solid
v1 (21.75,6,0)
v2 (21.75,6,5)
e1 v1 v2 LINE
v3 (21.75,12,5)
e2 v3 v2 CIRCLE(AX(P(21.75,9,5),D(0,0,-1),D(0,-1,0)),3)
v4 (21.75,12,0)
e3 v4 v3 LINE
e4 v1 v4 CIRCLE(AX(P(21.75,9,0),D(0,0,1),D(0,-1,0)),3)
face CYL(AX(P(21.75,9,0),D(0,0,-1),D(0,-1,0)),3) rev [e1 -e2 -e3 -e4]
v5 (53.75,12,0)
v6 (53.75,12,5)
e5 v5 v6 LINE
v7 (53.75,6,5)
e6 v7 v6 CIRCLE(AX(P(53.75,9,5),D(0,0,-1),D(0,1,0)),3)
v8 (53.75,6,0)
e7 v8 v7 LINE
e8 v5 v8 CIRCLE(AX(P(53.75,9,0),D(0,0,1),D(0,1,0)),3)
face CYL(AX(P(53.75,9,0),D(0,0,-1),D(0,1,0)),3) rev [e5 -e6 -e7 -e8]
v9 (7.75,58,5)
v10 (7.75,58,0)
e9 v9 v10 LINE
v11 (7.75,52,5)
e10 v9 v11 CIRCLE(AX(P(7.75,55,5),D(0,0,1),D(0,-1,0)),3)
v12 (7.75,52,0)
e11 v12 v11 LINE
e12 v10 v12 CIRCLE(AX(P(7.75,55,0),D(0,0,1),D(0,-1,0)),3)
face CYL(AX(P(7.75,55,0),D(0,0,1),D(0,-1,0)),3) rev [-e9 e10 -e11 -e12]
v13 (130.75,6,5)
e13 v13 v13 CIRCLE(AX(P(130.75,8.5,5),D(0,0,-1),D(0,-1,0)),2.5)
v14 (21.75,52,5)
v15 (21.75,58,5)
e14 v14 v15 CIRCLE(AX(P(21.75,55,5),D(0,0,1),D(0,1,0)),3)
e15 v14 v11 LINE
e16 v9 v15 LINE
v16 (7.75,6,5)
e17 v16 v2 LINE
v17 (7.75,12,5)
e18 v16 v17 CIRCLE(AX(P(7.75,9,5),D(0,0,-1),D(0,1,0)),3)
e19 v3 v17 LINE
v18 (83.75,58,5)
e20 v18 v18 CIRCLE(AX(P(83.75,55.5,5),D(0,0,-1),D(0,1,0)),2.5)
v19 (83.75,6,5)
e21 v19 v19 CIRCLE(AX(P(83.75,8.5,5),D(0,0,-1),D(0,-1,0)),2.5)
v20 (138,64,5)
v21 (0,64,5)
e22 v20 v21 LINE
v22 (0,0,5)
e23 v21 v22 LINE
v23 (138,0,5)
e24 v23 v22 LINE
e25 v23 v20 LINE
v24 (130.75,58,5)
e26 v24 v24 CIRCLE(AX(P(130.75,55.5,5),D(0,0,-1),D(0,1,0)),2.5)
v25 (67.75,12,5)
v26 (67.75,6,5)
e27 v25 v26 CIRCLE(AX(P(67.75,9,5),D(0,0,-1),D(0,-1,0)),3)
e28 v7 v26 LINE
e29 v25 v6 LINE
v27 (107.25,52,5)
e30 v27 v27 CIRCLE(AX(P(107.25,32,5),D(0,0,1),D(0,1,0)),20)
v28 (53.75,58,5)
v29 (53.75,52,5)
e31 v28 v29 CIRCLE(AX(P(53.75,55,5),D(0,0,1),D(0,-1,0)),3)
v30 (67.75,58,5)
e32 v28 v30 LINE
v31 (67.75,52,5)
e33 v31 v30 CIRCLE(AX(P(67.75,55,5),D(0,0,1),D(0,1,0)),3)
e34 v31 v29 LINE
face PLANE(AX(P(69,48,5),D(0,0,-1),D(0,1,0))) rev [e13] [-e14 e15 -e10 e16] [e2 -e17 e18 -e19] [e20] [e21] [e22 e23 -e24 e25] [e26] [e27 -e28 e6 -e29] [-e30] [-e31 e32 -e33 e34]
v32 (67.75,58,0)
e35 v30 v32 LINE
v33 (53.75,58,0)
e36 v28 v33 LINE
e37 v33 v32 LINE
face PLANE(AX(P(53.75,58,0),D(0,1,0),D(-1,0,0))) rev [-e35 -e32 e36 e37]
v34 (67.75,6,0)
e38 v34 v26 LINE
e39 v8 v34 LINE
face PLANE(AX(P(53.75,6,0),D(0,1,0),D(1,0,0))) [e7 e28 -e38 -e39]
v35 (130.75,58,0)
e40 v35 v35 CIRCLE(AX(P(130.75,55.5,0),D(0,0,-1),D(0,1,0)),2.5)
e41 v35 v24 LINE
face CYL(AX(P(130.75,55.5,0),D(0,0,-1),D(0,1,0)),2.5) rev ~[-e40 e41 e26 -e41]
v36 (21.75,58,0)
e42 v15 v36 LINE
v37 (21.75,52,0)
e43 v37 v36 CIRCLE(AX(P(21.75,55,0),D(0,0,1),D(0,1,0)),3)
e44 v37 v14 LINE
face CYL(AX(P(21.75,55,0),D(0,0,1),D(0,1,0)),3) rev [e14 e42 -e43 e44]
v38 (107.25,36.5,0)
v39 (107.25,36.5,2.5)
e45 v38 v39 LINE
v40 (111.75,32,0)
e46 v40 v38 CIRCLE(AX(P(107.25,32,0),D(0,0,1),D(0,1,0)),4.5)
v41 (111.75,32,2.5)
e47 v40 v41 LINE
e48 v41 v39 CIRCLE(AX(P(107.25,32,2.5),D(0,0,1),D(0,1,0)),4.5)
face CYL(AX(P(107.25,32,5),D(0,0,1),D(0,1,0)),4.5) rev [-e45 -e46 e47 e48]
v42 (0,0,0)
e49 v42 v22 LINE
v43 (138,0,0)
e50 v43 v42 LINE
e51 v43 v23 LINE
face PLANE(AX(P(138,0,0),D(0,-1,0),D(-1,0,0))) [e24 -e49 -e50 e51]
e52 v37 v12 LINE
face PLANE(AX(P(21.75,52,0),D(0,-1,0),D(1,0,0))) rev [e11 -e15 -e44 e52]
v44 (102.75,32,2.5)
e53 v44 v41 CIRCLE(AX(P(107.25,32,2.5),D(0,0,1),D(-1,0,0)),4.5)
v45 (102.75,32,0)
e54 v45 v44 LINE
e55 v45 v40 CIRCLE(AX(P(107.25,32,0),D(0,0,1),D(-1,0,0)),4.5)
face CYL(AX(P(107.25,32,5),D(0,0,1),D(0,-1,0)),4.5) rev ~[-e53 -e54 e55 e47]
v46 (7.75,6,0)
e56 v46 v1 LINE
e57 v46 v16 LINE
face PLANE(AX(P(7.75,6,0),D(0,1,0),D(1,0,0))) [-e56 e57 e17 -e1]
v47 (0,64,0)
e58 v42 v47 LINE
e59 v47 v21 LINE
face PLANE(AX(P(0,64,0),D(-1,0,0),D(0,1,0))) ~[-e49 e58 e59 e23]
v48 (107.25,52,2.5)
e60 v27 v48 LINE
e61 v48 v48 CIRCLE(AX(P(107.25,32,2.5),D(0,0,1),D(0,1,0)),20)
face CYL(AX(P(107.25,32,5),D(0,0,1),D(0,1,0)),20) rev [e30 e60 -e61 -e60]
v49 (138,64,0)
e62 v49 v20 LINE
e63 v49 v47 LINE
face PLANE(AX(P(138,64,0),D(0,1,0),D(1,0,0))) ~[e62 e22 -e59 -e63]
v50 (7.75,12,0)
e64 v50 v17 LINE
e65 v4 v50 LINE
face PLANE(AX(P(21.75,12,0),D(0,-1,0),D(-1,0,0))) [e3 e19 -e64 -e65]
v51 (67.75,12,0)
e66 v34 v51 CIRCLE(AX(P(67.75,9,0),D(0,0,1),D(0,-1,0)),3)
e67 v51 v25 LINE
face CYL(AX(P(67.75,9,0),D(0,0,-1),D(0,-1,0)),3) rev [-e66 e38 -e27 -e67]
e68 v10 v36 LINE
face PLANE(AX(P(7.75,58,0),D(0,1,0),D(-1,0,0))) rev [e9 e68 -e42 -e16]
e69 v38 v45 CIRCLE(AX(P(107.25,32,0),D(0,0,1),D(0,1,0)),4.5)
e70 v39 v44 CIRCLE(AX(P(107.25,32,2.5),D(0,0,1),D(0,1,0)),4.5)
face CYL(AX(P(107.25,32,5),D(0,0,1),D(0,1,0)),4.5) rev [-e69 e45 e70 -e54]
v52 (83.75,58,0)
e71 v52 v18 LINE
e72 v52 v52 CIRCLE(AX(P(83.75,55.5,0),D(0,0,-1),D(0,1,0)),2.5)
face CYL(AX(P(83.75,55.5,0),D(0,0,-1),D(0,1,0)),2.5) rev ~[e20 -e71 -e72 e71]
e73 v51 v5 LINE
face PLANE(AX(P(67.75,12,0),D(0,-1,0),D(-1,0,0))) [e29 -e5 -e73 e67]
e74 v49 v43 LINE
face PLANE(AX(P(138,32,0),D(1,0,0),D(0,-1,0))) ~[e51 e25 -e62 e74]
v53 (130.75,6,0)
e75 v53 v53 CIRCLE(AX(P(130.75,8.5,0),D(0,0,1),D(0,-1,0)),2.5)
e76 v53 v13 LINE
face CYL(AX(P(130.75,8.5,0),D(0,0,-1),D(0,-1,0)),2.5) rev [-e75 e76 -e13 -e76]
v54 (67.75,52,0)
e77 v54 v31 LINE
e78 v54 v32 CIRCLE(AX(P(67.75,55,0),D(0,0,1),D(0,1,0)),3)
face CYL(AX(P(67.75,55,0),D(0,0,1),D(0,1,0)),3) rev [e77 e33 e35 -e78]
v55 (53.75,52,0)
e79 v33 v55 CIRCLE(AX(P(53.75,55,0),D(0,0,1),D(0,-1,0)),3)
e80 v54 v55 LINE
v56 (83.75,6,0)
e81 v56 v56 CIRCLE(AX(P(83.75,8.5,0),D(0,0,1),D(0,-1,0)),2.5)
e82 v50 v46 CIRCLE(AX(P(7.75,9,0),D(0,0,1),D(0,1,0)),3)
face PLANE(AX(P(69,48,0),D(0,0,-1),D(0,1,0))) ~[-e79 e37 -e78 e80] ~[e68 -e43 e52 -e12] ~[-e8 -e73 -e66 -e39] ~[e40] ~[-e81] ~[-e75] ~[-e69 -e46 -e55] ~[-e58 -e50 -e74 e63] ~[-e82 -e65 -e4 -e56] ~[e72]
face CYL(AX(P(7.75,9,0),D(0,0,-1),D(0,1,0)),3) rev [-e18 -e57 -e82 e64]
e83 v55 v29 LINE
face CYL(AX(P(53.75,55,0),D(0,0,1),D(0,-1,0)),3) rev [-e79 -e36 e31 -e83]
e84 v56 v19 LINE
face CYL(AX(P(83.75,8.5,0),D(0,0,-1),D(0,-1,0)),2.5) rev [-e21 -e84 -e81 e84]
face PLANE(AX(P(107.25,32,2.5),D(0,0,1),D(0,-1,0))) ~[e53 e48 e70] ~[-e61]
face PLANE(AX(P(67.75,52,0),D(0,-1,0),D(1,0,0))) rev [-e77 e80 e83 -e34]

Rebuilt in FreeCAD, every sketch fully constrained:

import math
import FreeCAD as App
import Part
import Sketcher
Q = App.Units.Quantity


def add_polygon(sketch, points):
    """Adds a closed chain of lines whose ends are joined by coincident constraints."""
    first, n = sketch.GeometryCount, len(points)
    for a, b in zip(points, points[1:] + points[:1]):
        sketch.addGeometry(Part.LineSegment(App.Vector(*a, 0), App.Vector(*b, 0)), False)
    for i in range(n):
        sketch.addConstraint(Sketcher.Constraint("Coincident", first + i, 2, first + (i + 1) % n, 1))

doc = App.newDocument("Part")
body = doc.addObject("PartDesign::Body", "Body")

# Sketch on XY plane
sketch1 = body.newObject("Sketcher::SketchObject", "Sketch")
sketch1.AttachmentSupport = (doc.getObject("XY_Plane"), [""])
sketch1.MapMode = "FlatFace"
add_polygon(sketch1, [(0, 69), (0, -69), (32, -69), (32, 69)])  # lines 0-3
sketch1.addConstraint([
    Sketcher.Constraint("Vertical", 0),
    Sketcher.Constraint("Horizontal", 1),
    Sketcher.Constraint("Vertical", 2),
    Sketcher.Constraint("Horizontal", 3),
    Sketcher.Constraint("Symmetric", 0, 2, 3, 2, -1, 1),
    Sketcher.Constraint("DistanceX", 1, 1, 1, 2, Q("32 mm")),
    Sketcher.Constraint("DistanceY", 0, 2, 0, 1, Q("138 mm")),
])
pad1 = body.newObject("PartDesign::Pad", "Pad")
pad1.Profile = sketch1
pad1.Length = 5

# Sketch on XY plane
sketch2 = body.newObject("Sketcher::SketchObject", "Sketch001")
sketch2.AttachmentSupport = (doc.getObject("XY_Plane"), [""])
sketch2.MapMode = "FlatFace"
sketch2.addGeometry([
    Part.Circle(App.Vector(23.5, 14.75, 0), App.Vector(0, 0, 1), 2.5),
    Part.Circle(App.Vector(23.5, 61.75, 0), App.Vector(0, 0, 1), 2.5),
], False)
sketch2.addConstraint([
    Sketcher.Constraint("Equal", 0, 1),
    Sketcher.Constraint("Vertical", 0, 3, 1, 3),
    Sketcher.Constraint("Diameter", 0, Q("5 mm")),
    Sketcher.Constraint("DistanceY", 0, 3, 1, 3, Q("47 mm")),
    Sketcher.Constraint("DistanceX", -1, 1, 0, 3, Q("23.5 mm")),
    Sketcher.Constraint("DistanceY", -1, 1, 0, 3, Q("14.75 mm")),
])
pocket1 = body.newObject("PartDesign::Pocket", "Pocket")
pocket1.Profile = sketch2
pocket1.Type = "ThroughAll"
pocket1.Reversed = True

# Sketch on XY plane
sketch3 = body.newObject("Sketcher::SketchObject", "Sketch002")
sketch3.AttachmentSupport = (doc.getObject("XY_Plane"), [""])
sketch3.MapMode = "FlatFace"
sketch3.addGeometry([
    Part.ArcOfCircle(Part.Circle(App.Vector(23, -1.25, 0), App.Vector(0, 0, 1), 3), math.radians(0), math.radians(180)),  # 0
    Part.LineSegment(App.Vector(20, -1.25, 0), App.Vector(20, -15.25, 0)),  # 1
    Part.ArcOfCircle(Part.Circle(App.Vector(23, -15.25, 0), App.Vector(0, 0, 1), 3), math.radians(180), math.radians(360)),  # 2
    Part.LineSegment(App.Vector(26, -15.25, 0), App.Vector(26, -1.25, 0)),  # 3
    Part.ArcOfCircle(Part.Circle(App.Vector(23, -47.25, 0), App.Vector(0, 0, 1), 3), math.radians(0), math.radians(180)),  # 4
    Part.LineSegment(App.Vector(20, -47.25, 0), App.Vector(20, -61.25, 0)),  # 5
    Part.ArcOfCircle(Part.Circle(App.Vector(23, -61.25, 0), App.Vector(0, 0, 1), 3), math.radians(180), math.radians(360)),  # 6
    Part.LineSegment(App.Vector(26, -61.25, 0), App.Vector(26, -47.25, 0)),  # 7
], False)
sketch3.addConstraint([
    Sketcher.Constraint("Tangent", 0, 2, 1, 1),
    Sketcher.Constraint("Tangent", 1, 2, 2, 1),
    Sketcher.Constraint("Tangent", 2, 2, 3, 1),
    Sketcher.Constraint("Tangent", 3, 2, 0, 1),
    Sketcher.Constraint("Tangent", 4, 2, 5, 1),
    Sketcher.Constraint("Tangent", 5, 2, 6, 1),
    Sketcher.Constraint("Tangent", 6, 2, 7, 1),
    Sketcher.Constraint("Tangent", 7, 2, 4, 1),
    Sketcher.Constraint("Vertical", 1),
    Sketcher.Constraint("Vertical", 3),
    Sketcher.Constraint("Vertical", 5),
    Sketcher.Constraint("Vertical", 7),
    Sketcher.Constraint("Equal", 2, 4),
    Sketcher.Constraint("Vertical", 2, 3, 4, 3),
    Sketcher.Constraint("Equal", 3, 5),
    Sketcher.Constraint("Radius", 0, Q("3 mm")),
    Sketcher.Constraint("DistanceY", 1, 2, 1, 1, Q("14 mm")),
    Sketcher.Constraint("DistanceX", -1, 1, 0, 3, Q("23 mm")),
    Sketcher.Constraint("DistanceY", 4, 3, 2, 3, Q("32 mm")),
    Sketcher.Constraint("DistanceY", 0, 3, -1, 1, Q("1.25 mm")),
])
pocket2 = body.newObject("PartDesign::Pocket", "Pocket001")
pocket2.Profile = sketch3
pocket2.Type = "ThroughAll"
pocket2.Midplane = True

# Sketch on XY plane
sketch4 = body.newObject("Sketcher::SketchObject", "Sketch003")
sketch4.AttachmentSupport = (doc.getObject("XY_Plane"), [""])
sketch4.MapMode = "FlatFace"
sketch4.AttachmentOffset = App.Placement(App.Vector(0, 0, 5), App.Rotation())
sketch4.addGeometry(Part.Circle(App.Vector(0, 38.25, 0), App.Vector(0, 0, 1), 20), False)
sketch4.addConstraint([
    Sketcher.Constraint("PointOnObject", 0, 3, -2),
    Sketcher.Constraint("Diameter", 0, Q("40 mm")),
    Sketcher.Constraint("DistanceY", -1, 1, 0, 3, Q("38.25 mm")),
])
pocket3 = body.newObject("PartDesign::Pocket", "Pocket002")
pocket3.Profile = sketch4
pocket3.Length = 2.5

# Sketch on XY plane
sketch5 = body.newObject("Sketcher::SketchObject", "Sketch004")
sketch5.AttachmentSupport = (doc.getObject("XY_Plane"), [""])
sketch5.MapMode = "FlatFace"
sketch5.AttachmentOffset = App.Placement(App.Vector(0, 0, 5), App.Rotation())
sketch5.addGeometry(Part.Circle(App.Vector(0, 38.25, 0), App.Vector(0, 0, 1), 4.5), False)
sketch5.addConstraint([
    Sketcher.Constraint("PointOnObject", 0, 3, -2),
    Sketcher.Constraint("Diameter", 0, Q("9 mm")),
    Sketcher.Constraint("DistanceY", -1, 1, 0, 3, Q("38.25 mm")),
])
pocket4 = body.newObject("PartDesign::Pocket", "Pocket003")
pocket4.Profile = sketch5
pocket4.Type = "ThroughAll"
pocket4.Midplane = True
doc.recompute()

mirrored = body.newObject("PartDesign::Mirrored", "Mirrored")
mirrored.Originals = [pad1, pocket1, pocket2, pocket3, pocket4]
mirrored.MirrorPlane = (doc.getObject("YZ_Plane"), [""])
body.Tip = mirrored
body2 = doc.addObject("PartDesign::Body", "Body001")
doc.recompute()

body.Placement = App.Placement(App.Vector(69, 32, 0), App.Rotation(App.Vector(0, 0, -1), 90))
boolean = body2.newObject("PartDesign::Boolean", "Boolean")
boolean.Type = "Fuse"
boolean.addObjects([body])

doc.recompute()
